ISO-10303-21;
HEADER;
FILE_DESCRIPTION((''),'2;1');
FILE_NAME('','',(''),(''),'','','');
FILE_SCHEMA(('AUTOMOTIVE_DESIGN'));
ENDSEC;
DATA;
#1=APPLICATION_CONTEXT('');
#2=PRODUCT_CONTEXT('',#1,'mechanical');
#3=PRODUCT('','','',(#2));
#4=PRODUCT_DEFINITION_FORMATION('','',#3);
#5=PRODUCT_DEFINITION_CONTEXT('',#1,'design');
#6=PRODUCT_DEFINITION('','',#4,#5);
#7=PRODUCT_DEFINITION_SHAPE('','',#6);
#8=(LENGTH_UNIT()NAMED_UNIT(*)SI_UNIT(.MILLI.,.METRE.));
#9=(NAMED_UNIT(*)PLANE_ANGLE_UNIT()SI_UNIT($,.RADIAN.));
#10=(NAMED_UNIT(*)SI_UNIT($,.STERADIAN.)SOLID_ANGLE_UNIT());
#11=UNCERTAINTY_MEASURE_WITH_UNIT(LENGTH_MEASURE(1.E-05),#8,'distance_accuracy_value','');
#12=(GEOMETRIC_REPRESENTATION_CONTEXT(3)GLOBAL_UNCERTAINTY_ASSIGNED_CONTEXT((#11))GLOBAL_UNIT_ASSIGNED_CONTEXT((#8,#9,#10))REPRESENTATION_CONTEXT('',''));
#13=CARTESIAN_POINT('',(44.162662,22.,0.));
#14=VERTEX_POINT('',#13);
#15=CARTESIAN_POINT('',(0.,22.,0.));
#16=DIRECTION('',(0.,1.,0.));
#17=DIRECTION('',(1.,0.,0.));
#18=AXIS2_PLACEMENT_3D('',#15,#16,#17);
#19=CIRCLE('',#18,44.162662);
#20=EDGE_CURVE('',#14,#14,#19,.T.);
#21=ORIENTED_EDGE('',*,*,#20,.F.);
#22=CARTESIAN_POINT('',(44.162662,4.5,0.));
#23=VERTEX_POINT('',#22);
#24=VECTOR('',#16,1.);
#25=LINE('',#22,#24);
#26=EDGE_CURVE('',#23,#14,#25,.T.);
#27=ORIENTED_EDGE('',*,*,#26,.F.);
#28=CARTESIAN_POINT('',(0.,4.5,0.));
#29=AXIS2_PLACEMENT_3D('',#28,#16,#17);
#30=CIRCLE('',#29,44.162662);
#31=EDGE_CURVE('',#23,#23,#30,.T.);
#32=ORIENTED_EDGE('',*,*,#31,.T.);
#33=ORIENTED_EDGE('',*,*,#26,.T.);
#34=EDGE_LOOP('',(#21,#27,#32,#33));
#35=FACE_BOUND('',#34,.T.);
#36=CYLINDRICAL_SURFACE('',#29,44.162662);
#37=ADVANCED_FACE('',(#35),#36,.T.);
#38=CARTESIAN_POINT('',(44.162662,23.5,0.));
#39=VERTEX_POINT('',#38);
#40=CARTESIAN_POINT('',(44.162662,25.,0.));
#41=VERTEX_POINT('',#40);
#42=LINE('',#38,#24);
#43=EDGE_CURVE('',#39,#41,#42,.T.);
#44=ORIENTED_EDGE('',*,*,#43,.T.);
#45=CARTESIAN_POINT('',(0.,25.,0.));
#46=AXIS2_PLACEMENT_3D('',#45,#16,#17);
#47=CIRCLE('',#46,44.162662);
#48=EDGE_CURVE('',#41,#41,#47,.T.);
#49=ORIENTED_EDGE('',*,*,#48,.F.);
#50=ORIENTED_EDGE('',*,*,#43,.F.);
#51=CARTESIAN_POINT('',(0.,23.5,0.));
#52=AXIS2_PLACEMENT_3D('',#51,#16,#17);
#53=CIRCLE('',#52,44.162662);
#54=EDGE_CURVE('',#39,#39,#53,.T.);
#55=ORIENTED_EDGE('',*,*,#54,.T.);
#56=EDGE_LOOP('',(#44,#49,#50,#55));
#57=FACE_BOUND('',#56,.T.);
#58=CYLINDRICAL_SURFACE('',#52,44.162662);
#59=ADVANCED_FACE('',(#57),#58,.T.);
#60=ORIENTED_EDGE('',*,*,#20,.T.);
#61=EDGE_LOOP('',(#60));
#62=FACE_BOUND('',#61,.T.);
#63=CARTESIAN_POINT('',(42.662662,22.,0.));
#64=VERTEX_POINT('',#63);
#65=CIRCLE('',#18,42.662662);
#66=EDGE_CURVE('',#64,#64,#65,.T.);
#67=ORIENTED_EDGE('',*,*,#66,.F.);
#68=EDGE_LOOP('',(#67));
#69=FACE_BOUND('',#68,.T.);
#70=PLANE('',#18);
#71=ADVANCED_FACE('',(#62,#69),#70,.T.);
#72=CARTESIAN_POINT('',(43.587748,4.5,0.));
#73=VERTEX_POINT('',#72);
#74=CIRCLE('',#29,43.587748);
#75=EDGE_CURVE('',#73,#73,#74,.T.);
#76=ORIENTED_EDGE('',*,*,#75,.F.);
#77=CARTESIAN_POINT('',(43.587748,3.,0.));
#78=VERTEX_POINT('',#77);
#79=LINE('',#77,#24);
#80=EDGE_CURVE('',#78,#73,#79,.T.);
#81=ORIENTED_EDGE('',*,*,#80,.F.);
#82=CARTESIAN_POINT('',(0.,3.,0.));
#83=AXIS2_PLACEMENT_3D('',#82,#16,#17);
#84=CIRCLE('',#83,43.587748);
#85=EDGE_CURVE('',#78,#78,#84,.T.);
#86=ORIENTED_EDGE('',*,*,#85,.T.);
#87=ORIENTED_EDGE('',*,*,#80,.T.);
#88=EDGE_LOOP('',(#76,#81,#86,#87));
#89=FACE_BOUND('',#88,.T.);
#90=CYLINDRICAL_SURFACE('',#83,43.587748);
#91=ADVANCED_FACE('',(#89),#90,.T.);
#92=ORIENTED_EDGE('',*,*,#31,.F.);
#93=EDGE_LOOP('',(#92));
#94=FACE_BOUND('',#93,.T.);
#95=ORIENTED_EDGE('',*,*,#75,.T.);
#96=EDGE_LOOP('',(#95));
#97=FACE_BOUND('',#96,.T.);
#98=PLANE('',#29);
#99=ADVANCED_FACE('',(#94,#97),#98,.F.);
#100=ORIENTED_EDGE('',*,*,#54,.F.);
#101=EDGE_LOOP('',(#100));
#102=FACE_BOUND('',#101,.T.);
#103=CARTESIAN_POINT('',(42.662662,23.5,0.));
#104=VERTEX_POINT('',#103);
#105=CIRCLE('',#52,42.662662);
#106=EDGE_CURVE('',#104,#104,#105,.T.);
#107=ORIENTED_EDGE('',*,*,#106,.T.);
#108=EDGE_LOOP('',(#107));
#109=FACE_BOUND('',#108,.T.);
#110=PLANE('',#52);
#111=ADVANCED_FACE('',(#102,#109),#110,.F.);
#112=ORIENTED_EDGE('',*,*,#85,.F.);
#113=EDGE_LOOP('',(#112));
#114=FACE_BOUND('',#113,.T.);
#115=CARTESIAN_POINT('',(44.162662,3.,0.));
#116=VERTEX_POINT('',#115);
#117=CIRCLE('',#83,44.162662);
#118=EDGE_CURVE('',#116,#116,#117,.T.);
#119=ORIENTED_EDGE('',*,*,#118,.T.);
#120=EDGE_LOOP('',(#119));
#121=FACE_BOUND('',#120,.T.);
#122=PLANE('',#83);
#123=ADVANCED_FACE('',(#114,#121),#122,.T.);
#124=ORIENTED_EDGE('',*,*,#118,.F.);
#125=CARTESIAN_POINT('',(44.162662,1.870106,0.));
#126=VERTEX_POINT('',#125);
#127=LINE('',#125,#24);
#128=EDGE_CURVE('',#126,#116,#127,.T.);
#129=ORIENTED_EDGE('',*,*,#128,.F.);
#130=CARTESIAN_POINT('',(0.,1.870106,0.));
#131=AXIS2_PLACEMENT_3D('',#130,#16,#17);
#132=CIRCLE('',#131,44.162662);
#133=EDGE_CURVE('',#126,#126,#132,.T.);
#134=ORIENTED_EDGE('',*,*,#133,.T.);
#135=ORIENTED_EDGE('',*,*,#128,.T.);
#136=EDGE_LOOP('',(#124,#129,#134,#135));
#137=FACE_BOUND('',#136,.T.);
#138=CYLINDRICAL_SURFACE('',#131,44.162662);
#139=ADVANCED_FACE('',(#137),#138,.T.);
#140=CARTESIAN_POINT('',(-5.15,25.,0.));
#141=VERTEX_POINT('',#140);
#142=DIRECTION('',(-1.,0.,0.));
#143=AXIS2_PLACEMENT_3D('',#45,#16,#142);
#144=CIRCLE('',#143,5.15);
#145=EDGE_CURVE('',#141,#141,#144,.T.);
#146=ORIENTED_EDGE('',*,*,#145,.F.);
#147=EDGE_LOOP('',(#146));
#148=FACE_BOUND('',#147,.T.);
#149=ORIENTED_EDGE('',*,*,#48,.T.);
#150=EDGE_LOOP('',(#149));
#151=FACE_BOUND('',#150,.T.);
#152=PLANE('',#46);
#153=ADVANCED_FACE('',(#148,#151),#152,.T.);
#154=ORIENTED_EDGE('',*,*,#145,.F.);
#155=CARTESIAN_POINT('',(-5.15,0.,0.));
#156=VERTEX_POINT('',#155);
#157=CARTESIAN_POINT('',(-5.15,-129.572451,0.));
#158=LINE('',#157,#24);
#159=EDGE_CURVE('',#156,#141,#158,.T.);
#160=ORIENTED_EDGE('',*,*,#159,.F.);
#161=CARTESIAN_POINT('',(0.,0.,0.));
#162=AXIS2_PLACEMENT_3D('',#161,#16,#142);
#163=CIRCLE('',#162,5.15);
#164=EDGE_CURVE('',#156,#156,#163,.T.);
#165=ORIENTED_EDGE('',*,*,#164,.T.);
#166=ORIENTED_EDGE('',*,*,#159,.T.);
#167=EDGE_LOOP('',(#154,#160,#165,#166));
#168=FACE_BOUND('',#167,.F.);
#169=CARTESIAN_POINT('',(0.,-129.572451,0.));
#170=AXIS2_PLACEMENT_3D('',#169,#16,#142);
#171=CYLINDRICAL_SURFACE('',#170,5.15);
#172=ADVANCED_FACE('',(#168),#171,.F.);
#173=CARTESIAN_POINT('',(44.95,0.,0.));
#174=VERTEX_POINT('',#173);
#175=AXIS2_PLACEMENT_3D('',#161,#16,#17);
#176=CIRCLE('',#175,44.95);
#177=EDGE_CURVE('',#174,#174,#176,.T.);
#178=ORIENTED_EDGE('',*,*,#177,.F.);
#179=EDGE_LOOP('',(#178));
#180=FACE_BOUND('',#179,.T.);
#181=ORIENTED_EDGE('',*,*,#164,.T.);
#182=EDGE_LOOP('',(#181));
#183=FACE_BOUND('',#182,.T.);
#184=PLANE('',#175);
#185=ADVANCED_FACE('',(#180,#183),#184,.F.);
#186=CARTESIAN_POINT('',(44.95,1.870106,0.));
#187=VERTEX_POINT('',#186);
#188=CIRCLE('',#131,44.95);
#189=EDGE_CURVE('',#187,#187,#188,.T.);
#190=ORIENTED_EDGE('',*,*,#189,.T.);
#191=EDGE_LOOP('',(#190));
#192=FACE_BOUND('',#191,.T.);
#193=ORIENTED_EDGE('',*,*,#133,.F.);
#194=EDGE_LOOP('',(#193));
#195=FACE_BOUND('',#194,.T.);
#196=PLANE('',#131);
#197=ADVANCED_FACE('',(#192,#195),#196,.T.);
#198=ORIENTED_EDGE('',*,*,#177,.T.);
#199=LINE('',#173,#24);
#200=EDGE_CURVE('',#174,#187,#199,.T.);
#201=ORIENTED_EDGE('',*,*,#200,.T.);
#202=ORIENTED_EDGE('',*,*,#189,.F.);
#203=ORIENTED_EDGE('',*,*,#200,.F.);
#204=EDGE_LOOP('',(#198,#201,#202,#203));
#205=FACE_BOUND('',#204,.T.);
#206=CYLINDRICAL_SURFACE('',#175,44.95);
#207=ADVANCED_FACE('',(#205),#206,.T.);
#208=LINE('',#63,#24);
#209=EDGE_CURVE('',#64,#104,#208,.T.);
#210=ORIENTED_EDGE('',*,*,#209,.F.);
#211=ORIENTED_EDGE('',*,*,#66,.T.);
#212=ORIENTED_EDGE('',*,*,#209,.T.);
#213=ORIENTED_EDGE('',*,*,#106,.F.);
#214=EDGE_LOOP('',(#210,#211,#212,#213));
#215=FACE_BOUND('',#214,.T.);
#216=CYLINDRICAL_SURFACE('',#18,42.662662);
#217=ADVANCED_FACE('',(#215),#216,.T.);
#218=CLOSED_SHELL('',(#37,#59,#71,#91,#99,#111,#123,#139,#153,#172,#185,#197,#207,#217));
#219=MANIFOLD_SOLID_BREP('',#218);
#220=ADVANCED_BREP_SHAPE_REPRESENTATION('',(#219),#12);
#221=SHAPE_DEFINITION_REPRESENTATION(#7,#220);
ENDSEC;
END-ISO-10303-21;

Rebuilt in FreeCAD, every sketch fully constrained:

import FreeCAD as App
import Part
import Sketcher
from FreeCAD import Vector
Q = App.Units.Quantity


def add_polygon(sketch, points):
    """Adds a closed chain of lines whose ends are joined by coincident constraints."""
    first, n = sketch.GeometryCount, len(points)
    for a, b in zip(points, points[1:] + points[:1]):
        sketch.addGeometry(Part.LineSegment(App.Vector(*a, 0), App.Vector(*b, 0)), False)
    for i in range(n):
        sketch.addConstraint(Sketcher.Constraint("Coincident", first + i, 2, first + (i + 1) % n, 1))

doc = App.newDocument("Part")
body = doc.addObject("PartDesign::Body", "Body")

# Sketch on XY plane
sketch1 = body.newObject("Sketcher::SketchObject", "Sketch")
sketch1.AttachmentSupport = (doc.getObject("XY_Plane"), [""])
sketch1.MapMode = "FlatFace"
add_polygon(sketch1, [(0, 25), (0, 0), (45, 0), (45, 1.9), (44.2, 1.9), (44.2, 3), (43.6, 3), (43.6, 4.5), (44.2, 4.5), (44.2, 22), (42.7, 22), (42.7, 23.5), (44.2, 23.5), (44.2, 25)])  # lines 0-13
sketch1.addConstraint([
    Sketcher.Constraint("Vertical", 0),
    Sketcher.Constraint("Horizontal", 1),
    Sketcher.Constraint("Vertical", 2),
    Sketcher.Constraint("Horizontal", 3),
    Sketcher.Constraint("Vertical", 4),
    Sketcher.Constraint("Horizontal", 5),
    Sketcher.Constraint("Vertical", 6),
    Sketcher.Constraint("Horizontal", 7),
    Sketcher.Constraint("Vertical", 8),
    Sketcher.Constraint("Horizontal", 9),
    Sketcher.Constraint("Vertical", 10),
    Sketcher.Constraint("Horizontal", 11),
    Sketcher.Constraint("Vertical", 12),
    Sketcher.Constraint("Horizontal", 13),
    Sketcher.Constraint("Coincident", 0, 2, -1, 1),
    Sketcher.Constraint("Vertical", 4, 2, 7, 2),
    Sketcher.Constraint("Vertical", 8, 2, 11, 2),
    Sketcher.Constraint("Equal", 11, 6),
    Sketcher.Constraint("Equal", 6, 10),
    Sketcher.Constraint("Equal", 10, 12),
    Sketcher.Constraint("DistanceY", 0, 2, 0, 1, Q("25 mm")),
    Sketcher.Constraint("DistanceX", 9, 2, 9, 1, Q("1.5 mm")),
    Sketcher.Constraint("DistanceY", 8, 1, 8, 2, Q("17.5 mm")),
    Sketcher.Constraint("DistanceX", 1, 1, 1, 2, Q("44.95 mm")),
    Sketcher.Constraint("DistanceX", 3, 2, 3, 1, Q("0.787338 mm")),
    Sketcher.Constraint("DistanceX", 5, 2, 5, 1, Q("0.574914 mm")),
    Sketcher.Constraint("DistanceY", 2, 1, 2, 2, Q("1.870106 mm")),
])
revolution = body.newObject("PartDesign::Revolution", "Revolution")
revolution.Profile = sketch1
revolution.ReferenceAxis = (sketch1, ["V_Axis"])
revolution.Angle = 360

# Sketch on XZ plane
sketch2 = body.newObject("Sketcher::SketchObject", "Sketch001")
sketch2.AttachmentSupport = (doc.getObject("XZ_Plane"), [""])
sketch2.MapMode = "FlatFace"
sketch2.addGeometry(Part.Circle(Vector(0, 0, 0), Vector(0, 0, 1), 5), False)
sketch2.addConstraint([
    Sketcher.Constraint("Coincident", 0, 3, -1, 1),
    Sketcher.Constraint("Diameter", 0, Q("10.3 mm")),
])
doc.recompute()
hole = body.newObject("PartDesign::Hole", "Hole")
hole.Profile = sketch2
hole.ThreadType = "None"
hole.Diameter = 10.3
hole.DepthType = "ThroughAll"

doc.recompute()
